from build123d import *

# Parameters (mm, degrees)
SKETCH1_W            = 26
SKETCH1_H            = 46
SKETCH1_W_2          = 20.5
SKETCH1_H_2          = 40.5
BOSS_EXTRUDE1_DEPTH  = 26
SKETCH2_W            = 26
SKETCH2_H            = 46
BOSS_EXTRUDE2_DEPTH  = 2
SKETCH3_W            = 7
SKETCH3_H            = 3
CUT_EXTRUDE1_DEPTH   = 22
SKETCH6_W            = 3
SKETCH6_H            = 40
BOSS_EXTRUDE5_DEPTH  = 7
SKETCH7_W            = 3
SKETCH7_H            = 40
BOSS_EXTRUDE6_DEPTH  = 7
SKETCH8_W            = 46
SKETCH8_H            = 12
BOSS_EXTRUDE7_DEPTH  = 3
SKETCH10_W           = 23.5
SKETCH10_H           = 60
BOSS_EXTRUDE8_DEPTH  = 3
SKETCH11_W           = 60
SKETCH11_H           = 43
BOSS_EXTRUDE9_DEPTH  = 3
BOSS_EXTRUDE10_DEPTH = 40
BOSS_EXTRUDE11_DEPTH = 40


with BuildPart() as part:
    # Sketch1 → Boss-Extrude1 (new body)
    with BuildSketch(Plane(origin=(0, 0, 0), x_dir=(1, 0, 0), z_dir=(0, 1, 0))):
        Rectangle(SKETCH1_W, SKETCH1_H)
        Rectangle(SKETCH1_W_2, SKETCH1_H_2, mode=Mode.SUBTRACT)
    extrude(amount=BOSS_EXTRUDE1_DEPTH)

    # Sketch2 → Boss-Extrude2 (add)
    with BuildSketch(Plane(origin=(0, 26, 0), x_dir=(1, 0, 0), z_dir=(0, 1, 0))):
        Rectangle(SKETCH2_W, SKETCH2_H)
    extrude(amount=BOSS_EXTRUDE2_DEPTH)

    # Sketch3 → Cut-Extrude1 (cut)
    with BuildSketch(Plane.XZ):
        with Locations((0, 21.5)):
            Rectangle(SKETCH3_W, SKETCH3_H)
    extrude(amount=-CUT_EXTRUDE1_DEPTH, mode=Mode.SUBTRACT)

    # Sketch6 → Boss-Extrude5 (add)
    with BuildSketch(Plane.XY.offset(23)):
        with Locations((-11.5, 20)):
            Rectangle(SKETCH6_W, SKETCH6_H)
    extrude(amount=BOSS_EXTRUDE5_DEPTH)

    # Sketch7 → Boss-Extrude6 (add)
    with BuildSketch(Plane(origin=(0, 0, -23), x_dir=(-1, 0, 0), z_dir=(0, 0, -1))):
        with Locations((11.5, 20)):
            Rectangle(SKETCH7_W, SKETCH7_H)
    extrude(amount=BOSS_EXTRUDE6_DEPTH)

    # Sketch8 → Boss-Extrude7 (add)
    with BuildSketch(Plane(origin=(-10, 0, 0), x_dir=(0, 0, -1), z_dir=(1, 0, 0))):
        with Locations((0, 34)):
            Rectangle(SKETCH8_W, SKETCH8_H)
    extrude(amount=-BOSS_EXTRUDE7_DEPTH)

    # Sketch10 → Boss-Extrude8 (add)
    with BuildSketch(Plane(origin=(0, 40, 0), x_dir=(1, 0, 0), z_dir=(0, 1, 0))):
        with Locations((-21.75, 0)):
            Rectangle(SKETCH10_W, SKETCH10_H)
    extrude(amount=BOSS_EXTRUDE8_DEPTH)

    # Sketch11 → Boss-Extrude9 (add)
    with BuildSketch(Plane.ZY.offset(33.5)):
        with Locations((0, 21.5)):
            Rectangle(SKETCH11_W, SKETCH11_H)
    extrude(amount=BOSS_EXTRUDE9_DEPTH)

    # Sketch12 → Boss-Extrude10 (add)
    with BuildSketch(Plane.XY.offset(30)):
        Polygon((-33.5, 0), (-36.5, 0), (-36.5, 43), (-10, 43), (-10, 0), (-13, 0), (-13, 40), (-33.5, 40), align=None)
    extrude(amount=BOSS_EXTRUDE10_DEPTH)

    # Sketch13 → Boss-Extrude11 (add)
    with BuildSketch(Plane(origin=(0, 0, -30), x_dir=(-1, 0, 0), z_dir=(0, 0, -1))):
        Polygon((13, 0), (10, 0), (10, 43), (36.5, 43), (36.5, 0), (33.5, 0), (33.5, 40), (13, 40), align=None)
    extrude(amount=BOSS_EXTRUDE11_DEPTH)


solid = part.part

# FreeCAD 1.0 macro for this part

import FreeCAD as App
import Part
import Sketcher
from FreeCAD import Vector
Q = App.Units.Quantity


def add_polygon(sketch, points):
    """Adds a closed chain of lines whose ends are joined by coincident constraints."""
    first, n = sketch.GeometryCount, len(points)
    for a, b in zip(points, points[1:] + points[:1]):
        sketch.addGeometry(Part.LineSegment(App.Vector(*a, 0), App.Vector(*b, 0)), False)
    for i in range(n):
        sketch.addConstraint(Sketcher.Constraint("Coincident", first + i, 2, first + (i + 1) % n, 1))

doc = App.newDocument("Part")
body = doc.addObject("PartDesign::Body", "Body")

# Sketch on XZ plane
sketch1 = body.newObject("Sketcher::SketchObject", "Sketch")
sketch1.AttachmentSupport = (doc.getObject("XZ_Plane"), [""])
sketch1.MapMode = "FlatFace"
add_polygon(sketch1, [(-13, -23), (-13, 23), (13, 23), (13, -23)])  # lines 0-3
add_polygon(sketch1, [(10.25, 20.25), (-10.25, 20.25), (-10.25, -20.25), (10.25, -20.25)])  # lines 4-7
sketch1.addConstraint(Sketcher.Constraint("Vertical", 0))
sketch1.addConstraint(Sketcher.Constraint("Horizontal", 1))
sketch1.addConstraint(Sketcher.Constraint("Vertical", 2))
sketch1.addConstraint(Sketcher.Constraint("Horizontal", 3))
sketch1.addConstraint(Sketcher.Constraint("Horizontal", 4))
sketch1.addConstraint(Sketcher.Constraint("Vertical", 5))
sketch1.addConstraint(Sketcher.Constraint("Horizontal", 6))
sketch1.addConstraint(Sketcher.Constraint("Vertical", 7))
sketch1.addConstraint(Sketcher.Constraint("Symmetric", 0, 2, 2, 2, -1, 1))
sketch1.addConstraint(Sketcher.Constraint("Symmetric", 4, 2, 6, 2, -1, 1))
sketch1.addConstraint(Sketcher.Constraint("DistanceX", 1, 1, 1, 2, Q("26 mm")))
sketch1.addConstraint(Sketcher.Constraint("DistanceY", 0, 1, 0, 2, Q("46 mm")))
sketch1.addConstraint(Sketcher.Constraint("DistanceX", 4, 2, 4, 1, Q("20.5 mm")))
sketch1.addConstraint(Sketcher.Constraint("DistanceY", 5, 2, 5, 1, Q("40.5 mm")))
pad1 = body.newObject("PartDesign::Pad", "Pad")
pad1.Profile = sketch1
pad1.Length = 26
pad1.Reversed = True

# Sketch on XZ plane
sketch2 = body.newObject("Sketcher::SketchObject", "Sketch001")
sketch2.AttachmentSupport = (doc.getObject("XZ_Plane"), [""])
sketch2.MapMode = "FlatFace"
sketch2.AttachmentOffset = App.Placement(Vector(0, 0, -26), App.Rotation())
add_polygon(sketch2, [(-13, -23), (-13, 23), (13, 23), (13, -23)])  # lines 0-3
sketch2.addConstraint(Sketcher.Constraint("Vertical", 0))
sketch2.addConstraint(Sketcher.Constraint("Horizontal", 1))
sketch2.addConstraint(Sketcher.Constraint("Vertical", 2))
sketch2.addConstraint(Sketcher.Constraint("Horizontal", 3))
sketch2.addConstraint(Sketcher.Constraint("Symmetric", 0, 2, 2, 2, -1, 1))
sketch2.addConstraint(Sketcher.Constraint("DistanceX", 1, 1, 1, 2, Q("26 mm")))
sketch2.addConstraint(Sketcher.Constraint("DistanceY", 0, 1, 0, 2, Q("46 mm")))
pad2 = body.newObject("PartDesign::Pad", "Pad001")
pad2.Profile = sketch2
pad2.Length = 2
pad2.Reversed = True

# Sketch on XZ plane
sketch3 = body.newObject("Sketcher::SketchObject", "Sketch002")
sketch3.AttachmentSupport = (doc.getObject("XZ_Plane"), [""])
sketch3.MapMode = "FlatFace"
add_polygon(sketch3, [(-3.5, 23), (-3.5, 20), (3.5, 20), (3.5, 23)])  # lines 0-3
sketch3.addConstraint(Sketcher.Constraint("Vertical", 0))
sketch3.addConstraint(Sketcher.Constraint("Horizontal", 1))
sketch3.addConstraint(Sketcher.Constraint("Vertical", 2))
sketch3.addConstraint(Sketcher.Constraint("Horizontal", 3))
sketch3.addConstraint(Sketcher.Constraint("DistanceX", 1, 1, 1, 2, Q("7 mm")))
sketch3.addConstraint(Sketcher.Constraint("DistanceY", 0, 2, 0, 1, Q("3 mm")))
sketch3.addConstraint(Sketcher.Constraint("DistanceY", -1, 1, 0, 2, Q("20 mm")))
sketch3.addConstraint(Sketcher.Constraint("DistanceX", 0, 2, -1, 1, Q("3.5 mm")))
pocket1 = body.newObject("PartDesign::Pocket", "Pocket")
pocket1.Profile = sketch3
pocket1.Length = 22

# Sketch on XY plane
sketch4 = body.newObject("Sketcher::SketchObject", "Sketch003")
sketch4.AttachmentSupport = (doc.getObject("XY_Plane"), [""])
sketch4.MapMode = "FlatFace"
sketch4.AttachmentOffset = App.Placement(Vector(0, 0, 23), App.Rotation())
add_polygon(sketch4, [(-13, 40), (-13, 0), (-10, 0), (-10, 40)])  # lines 0-3
sketch4.addConstraint(Sketcher.Constraint("Vertical", 0))
sketch4.addConstraint(Sketcher.Constraint("Horizontal", 1))
sketch4.addConstraint(Sketcher.Constraint("Vertical", 2))
sketch4.addConstraint(Sketcher.Constraint("Horizontal", 3))
sketch4.addConstraint(Sketcher.Constraint("PointOnObject", 0, 2, -1))
sketch4.addConstraint(Sketcher.Constraint("DistanceX", 1, 1, 1, 2, Q("3 mm")))
sketch4.addConstraint(Sketcher.Constraint("DistanceY", 0, 2, 0, 1, Q("40 mm")))
sketch4.addConstraint(Sketcher.Constraint("DistanceX", 0, 2, -1, 1, Q("13 mm")))
pad3 = body.newObject("PartDesign::Pad", "Pad002")
pad3.Profile = sketch4
pad3.Length = 7

# Sketch on XY plane
sketch5 = body.newObject("Sketcher::SketchObject", "Sketch004")
sketch5.AttachmentSupport = (doc.getObject("XY_Plane"), [""])
sketch5.MapMode = "FlatFace"
sketch5.AttachmentOffset = App.Placement(Vector(0, 0, -23), App.Rotation())
add_polygon(sketch5, [(-10, 40), (-10, 0), (-13, 0), (-13, 40)])  # lines 0-3
sketch5.addConstraint(Sketcher.Constraint("Vertical", 0))
sketch5.addConstraint(Sketcher.Constraint("Horizontal", 1))
sketch5.addConstraint(Sketcher.Constraint("Vertical", 2))
sketch5.addConstraint(Sketcher.Constraint("Horizontal", 3))
sketch5.addConstraint(Sketcher.Constraint("PointOnObject", 0, 2, -1))
sketch5.addConstraint(Sketcher.Constraint("DistanceX", 1, 2, 1, 1, Q("3 mm")))
sketch5.addConstraint(Sketcher.Constraint("DistanceY", 0, 2, 0, 1, Q("40 mm")))
sketch5.addConstraint(Sketcher.Constraint("DistanceX", 0, 2, -1, 1, Q("10 mm")))
pad4 = body.newObject("PartDesign::Pad", "Pad003")
pad4.Profile = sketch5
pad4.Length = 7
pad4.Reversed = True

# Sketch on YZ plane
sketch6 = body.newObject("Sketcher::SketchObject", "Sketch005")
sketch6.AttachmentSupport = (doc.getObject("YZ_Plane"), [""])
sketch6.MapMode = "FlatFace"
sketch6.AttachmentOffset = App.Placement(Vector(0, 0, -10), App.Rotation())
add_polygon(sketch6, [(40, 23), (28, 23), (28, -23), (40, -23)])  # lines 0-3
sketch6.addConstraint(Sketcher.Constraint("Horizontal", 0))
sketch6.addConstraint(Sketcher.Constraint("Vertical", 1))
sketch6.addConstraint(Sketcher.Constraint("Horizontal", 2))
sketch6.addConstraint(Sketcher.Constraint("Vertical", 3))
sketch6.addConstraint(Sketcher.Constraint("DistanceX", 0, 2, 0, 1, Q("12 mm")))
sketch6.addConstraint(Sketcher.Constraint("DistanceY", 1, 2, 1, 1, Q("46 mm")))
sketch6.addConstraint(Sketcher.Constraint("DistanceX", -1, 1, 0, 2, Q("28 mm")))
sketch6.addConstraint(Sketcher.Constraint("DistanceY", -1, 1, 0, 2, Q("23 mm")))
pad5 = body.newObject("PartDesign::Pad", "Pad004")
pad5.Profile = sketch6
pad5.Length = 3
pad5.Reversed = True

# Sketch on XZ plane
sketch7 = body.newObject("Sketcher::SketchObject", "Sketch006")
sketch7.AttachmentSupport = (doc.getObject("XZ_Plane"), [""])
sketch7.MapMode = "FlatFace"
sketch7.AttachmentOffset = App.Placement(Vector(0, 0, -40), App.Rotation())
add_polygon(sketch7, [(-33.5, -30), (-33.5, 30), (-10, 30), (-10, -30)])  # lines 0-3
sketch7.addConstraint(Sketcher.Constraint("Vertical", 0))
sketch7.addConstraint(Sketcher.Constraint("Horizontal", 1))
sketch7.addConstraint(Sketcher.Constraint("Vertical", 2))
sketch7.addConstraint(Sketcher.Constraint("Horizontal", 3))
sketch7.addConstraint(Sketcher.Constraint("DistanceY", 0, 1, 0, 2, Q("60 mm")))
sketch7.addConstraint(Sketcher.Constraint("DistanceX", 1, 1, 1, 2, Q("23.5 mm")))
sketch7.addConstraint(Sketcher.Constraint("DistanceY", -1, 1, 0, 2, Q("30 mm")))
sketch7.addConstraint(Sketcher.Constraint("DistanceX", 1, 2, -1, 1, Q("10 mm")))
pad6 = body.newObject("PartDesign::Pad", "Pad005")
pad6.Profile = sketch7
pad6.Length = 3
pad6.Reversed = True

# Sketch on YZ plane
sketch8 = body.newObject("Sketcher::SketchObject", "Sketch007")
sketch8.AttachmentSupport = (doc.getObject("YZ_Plane"), [""])
sketch8.MapMode = "FlatFace"
sketch8.AttachmentOffset = App.Placement(Vector(0, 0, -33.5), App.Rotation())
add_polygon(sketch8, [(43, -30), (0, -30), (0, 30), (43, 30)])  # lines 0-3
sketch8.addConstraint(Sketcher.Constraint("Horizontal", 0))
sketch8.addConstraint(Sketcher.Constraint("Vertical", 1))
sketch8.addConstraint(Sketcher.Constraint("Horizontal", 2))
sketch8.addConstraint(Sketcher.Constraint("Vertical", 3))
sketch8.addConstraint(Sketcher.Constraint("Symmetric", 0, 2, 1, 2, -1, 1))
sketch8.addConstraint(Sketcher.Constraint("DistanceX", 0, 2, 0, 1, Q("43 mm")))
sketch8.addConstraint(Sketcher.Constraint("DistanceY", 1, 1, 1, 2, Q("60 mm")))
pad7 = body.newObject("PartDesign::Pad", "Pad006")
pad7.Profile = sketch8
pad7.Length = 3
pad7.Reversed = True

# Sketch on XY plane
sketch9 = body.newObject("Sketcher::SketchObject", "Sketch008")
sketch9.AttachmentSupport = (doc.getObject("XY_Plane"), [""])
sketch9.MapMode = "FlatFace"
sketch9.AttachmentOffset = App.Placement(Vector(0, 0, 30), App.Rotation())
add_polygon(sketch9, [(-36.5, 0), (-33.5, 0), (-33.5, 40), (-13, 40), (-13, 0), (-10, 0), (-10, 43), (-36.5, 43)])  # lines 0-7
sketch9.addConstraint(Sketcher.Constraint("Horizontal", 0))
sketch9.addConstraint(Sketcher.Constraint("Vertical", 1))
sketch9.addConstraint(Sketcher.Constraint("Horizontal", 2))
sketch9.addConstraint(Sketcher.Constraint("Vertical", 3))
sketch9.addConstraint(Sketcher.Constraint("Horizontal", 4))
sketch9.addConstraint(Sketcher.Constraint("Vertical", 5))
sketch9.addConstraint(Sketcher.Constraint("Horizontal", 6))
sketch9.addConstraint(Sketcher.Constraint("Vertical", 7))
sketch9.addConstraint(Sketcher.Constraint("PointOnObject", 0, 2, -1))
sketch9.addConstraint(Sketcher.Constraint("PointOnObject", 3, 2, -1))
sketch9.addConstraint(Sketcher.Constraint("Equal", 0, 4))
sketch9.addConstraint(Sketcher.Constraint("DistanceX", 0, 1, 0, 2, Q("3 mm")))
sketch9.addConstraint(Sketcher.Constraint("DistanceY", 1, 1, 1, 2, Q("40 mm")))
sketch9.addConstraint(Sketcher.Constraint("DistanceY", 5, 1, 5, 2, Q("43 mm")))
sketch9.addConstraint(Sketcher.Constraint("DistanceX", 2, 1, 2, 2, Q("20.5 mm")))
sketch9.addConstraint(Sketcher.Constraint("DistanceX", 2, 2, -1, 1, Q("13 mm")))
pad8 = body.newObject("PartDesign::Pad", "Pad007")
pad8.Profile = sketch9
pad8.Length = 40

# Sketch on XY plane
sketch10 = body.newObject("Sketcher::SketchObject", "Sketch009")
sketch10.AttachmentSupport = (doc.getObject("XY_Plane"), [""])
sketch10.MapMode = "FlatFace"
sketch10.AttachmentOffset = App.Placement(Vector(0, 0, -30), App.Rotation())
add_polygon(sketch10, [(-10, 0), (-13, 0), (-13, 40), (-33.5, 40), (-33.5, 0), (-36.5, 0), (-36.5, 43), (-10, 43)])  # lines 0-7
sketch10.addConstraint(Sketcher.Constraint("Horizontal", 0))
sketch10.addConstraint(Sketcher.Constraint("Vertical", 1))
sketch10.addConstraint(Sketcher.Constraint("Horizontal", 2))
sketch10.addConstraint(Sketcher.Constraint("Vertical", 3))
sketch10.addConstraint(Sketcher.Constraint("Horizontal", 4))
sketch10.addConstraint(Sketcher.Constraint("Vertical", 5))
sketch10.addConstraint(Sketcher.Constraint("Horizontal", 6))
sketch10.addConstraint(Sketcher.Constraint("Vertical", 7))
sketch10.addConstraint(Sketcher.Constraint("PointOnObject", 0, 2, -1))
sketch10.addConstraint(Sketcher.Constraint("PointOnObject", 3, 2, -1))
sketch10.addConstraint(Sketcher.Constraint("Equal", 0, 4))
sketch10.addConstraint(Sketcher.Constraint("DistanceX", 0, 2, 0, 1, Q("3 mm")))
sketch10.addConstraint(Sketcher.Constraint("DistanceY", 1, 1, 1, 2, Q("40 mm")))
sketch10.addConstraint(Sketcher.Constraint("DistanceY", 5, 1, 5, 2, Q("43 mm")))
sketch10.addConstraint(Sketcher.Constraint("DistanceX", 2, 2, 2, 1, Q("20.5 mm")))
sketch10.addConstraint(Sketcher.Constraint("DistanceX", 0, 2, -1, 1, Q("13 mm")))
pad9 = body.newObject("PartDesign::Pad", "Pad008")
pad9.Profile = sketch10
pad9.Length = 40
pad9.Reversed = True

doc.recompute()
